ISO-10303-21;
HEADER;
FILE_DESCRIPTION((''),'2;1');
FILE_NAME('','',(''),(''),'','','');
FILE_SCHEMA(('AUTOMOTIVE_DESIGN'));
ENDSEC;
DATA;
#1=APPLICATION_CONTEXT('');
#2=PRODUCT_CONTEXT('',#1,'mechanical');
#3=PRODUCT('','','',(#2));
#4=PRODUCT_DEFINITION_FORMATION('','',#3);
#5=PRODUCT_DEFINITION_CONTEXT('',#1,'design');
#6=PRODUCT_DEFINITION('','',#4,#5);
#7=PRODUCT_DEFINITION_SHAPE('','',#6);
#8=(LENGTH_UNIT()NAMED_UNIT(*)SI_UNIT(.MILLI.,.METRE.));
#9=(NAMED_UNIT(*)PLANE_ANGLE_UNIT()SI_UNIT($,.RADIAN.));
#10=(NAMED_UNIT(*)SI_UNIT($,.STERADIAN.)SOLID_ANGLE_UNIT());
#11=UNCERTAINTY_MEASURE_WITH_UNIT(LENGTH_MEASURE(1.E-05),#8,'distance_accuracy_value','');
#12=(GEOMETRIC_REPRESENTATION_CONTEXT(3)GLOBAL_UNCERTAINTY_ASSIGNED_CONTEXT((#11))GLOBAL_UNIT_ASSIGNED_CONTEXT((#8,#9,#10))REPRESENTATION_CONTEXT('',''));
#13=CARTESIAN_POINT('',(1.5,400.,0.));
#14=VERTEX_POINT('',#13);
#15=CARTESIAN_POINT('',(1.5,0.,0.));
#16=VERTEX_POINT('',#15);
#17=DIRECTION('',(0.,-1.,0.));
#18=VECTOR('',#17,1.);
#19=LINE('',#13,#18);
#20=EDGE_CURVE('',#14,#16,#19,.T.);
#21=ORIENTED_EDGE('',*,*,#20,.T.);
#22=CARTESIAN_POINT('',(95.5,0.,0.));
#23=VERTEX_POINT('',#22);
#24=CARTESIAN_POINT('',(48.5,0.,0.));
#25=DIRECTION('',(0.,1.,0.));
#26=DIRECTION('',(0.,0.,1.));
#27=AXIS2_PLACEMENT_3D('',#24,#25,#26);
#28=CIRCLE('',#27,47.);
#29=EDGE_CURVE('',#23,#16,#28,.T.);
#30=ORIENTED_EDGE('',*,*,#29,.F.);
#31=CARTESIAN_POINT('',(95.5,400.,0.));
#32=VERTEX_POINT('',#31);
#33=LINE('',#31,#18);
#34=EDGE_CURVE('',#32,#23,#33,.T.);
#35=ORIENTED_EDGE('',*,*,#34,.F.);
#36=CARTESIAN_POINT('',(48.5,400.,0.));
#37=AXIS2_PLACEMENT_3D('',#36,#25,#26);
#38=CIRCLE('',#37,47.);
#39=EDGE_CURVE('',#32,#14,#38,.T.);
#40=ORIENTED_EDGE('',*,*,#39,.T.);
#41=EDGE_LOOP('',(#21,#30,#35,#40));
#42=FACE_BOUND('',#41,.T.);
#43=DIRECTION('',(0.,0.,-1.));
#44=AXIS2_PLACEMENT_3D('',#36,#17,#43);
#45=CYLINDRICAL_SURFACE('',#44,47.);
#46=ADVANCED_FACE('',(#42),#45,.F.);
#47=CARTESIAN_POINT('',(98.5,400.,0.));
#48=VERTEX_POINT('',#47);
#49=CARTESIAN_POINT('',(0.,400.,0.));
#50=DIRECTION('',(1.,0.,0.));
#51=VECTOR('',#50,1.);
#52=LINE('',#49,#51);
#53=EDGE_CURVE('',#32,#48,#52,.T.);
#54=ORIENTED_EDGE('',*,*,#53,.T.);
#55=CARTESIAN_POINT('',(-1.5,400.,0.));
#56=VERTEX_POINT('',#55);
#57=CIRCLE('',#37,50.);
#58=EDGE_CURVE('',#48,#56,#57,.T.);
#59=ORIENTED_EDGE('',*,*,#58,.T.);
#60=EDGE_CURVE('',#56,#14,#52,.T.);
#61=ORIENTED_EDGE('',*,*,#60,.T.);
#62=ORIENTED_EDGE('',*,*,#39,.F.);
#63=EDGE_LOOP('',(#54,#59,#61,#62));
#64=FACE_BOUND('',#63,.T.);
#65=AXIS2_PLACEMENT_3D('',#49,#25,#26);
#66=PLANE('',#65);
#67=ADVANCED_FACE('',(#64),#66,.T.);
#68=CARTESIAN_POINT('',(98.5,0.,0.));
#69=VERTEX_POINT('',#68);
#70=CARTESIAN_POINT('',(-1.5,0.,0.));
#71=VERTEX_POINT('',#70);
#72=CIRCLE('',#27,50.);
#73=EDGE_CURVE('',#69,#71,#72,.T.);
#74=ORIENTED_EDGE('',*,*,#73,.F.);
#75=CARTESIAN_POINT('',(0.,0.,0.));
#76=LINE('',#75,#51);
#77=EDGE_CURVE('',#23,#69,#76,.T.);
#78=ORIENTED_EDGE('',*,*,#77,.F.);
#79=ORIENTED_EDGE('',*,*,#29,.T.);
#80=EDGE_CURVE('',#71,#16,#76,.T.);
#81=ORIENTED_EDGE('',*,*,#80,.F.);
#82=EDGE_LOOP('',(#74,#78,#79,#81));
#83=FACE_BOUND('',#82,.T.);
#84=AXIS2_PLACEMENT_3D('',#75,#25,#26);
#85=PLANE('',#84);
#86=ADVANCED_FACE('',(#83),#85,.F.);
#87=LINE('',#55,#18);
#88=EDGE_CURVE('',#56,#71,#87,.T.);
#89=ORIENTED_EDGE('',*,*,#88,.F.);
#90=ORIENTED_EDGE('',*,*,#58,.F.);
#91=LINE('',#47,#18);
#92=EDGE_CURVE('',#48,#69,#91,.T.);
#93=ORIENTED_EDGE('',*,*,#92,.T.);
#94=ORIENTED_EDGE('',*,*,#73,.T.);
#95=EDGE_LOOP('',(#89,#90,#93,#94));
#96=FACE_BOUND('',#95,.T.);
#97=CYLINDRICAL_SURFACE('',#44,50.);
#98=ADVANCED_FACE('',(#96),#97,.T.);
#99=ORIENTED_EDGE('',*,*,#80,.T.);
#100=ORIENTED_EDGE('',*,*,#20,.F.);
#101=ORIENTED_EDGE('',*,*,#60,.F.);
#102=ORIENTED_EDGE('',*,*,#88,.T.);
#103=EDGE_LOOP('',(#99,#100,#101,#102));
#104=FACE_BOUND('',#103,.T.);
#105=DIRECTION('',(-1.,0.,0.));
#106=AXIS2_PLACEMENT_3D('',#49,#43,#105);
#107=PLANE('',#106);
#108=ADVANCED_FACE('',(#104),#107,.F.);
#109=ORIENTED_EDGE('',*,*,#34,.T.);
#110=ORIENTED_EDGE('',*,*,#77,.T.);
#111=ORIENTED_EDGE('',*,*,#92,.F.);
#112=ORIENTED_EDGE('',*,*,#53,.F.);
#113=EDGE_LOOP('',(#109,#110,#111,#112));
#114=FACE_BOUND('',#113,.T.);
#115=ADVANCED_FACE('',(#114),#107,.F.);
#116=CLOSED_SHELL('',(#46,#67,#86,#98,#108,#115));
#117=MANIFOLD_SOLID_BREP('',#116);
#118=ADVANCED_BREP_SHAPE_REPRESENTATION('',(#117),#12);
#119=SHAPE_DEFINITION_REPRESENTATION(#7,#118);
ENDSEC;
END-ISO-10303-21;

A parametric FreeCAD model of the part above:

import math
import FreeCAD as App
import Part
import Sketcher
from FreeCAD import Vector

doc = App.newDocument("Part")
body = doc.addObject("PartDesign::Body", "Body")

sketch1 = body.newObject("Sketcher::SketchObject", "Sketch")
sketch1.AttachmentSupport = (doc.getObject("XZ_Plane"), [""])
sketch1.MapMode = "FlatFace"
sketch1.addGeometry([
    Part.ArcOfCircle(Part.Circle(Vector(48.5, 0, 0), Vector(0, 0, 1), 47), math.radians(180), math.radians(360)),
    Part.LineSegment(Vector(95.5, 0, 0), Vector(98.5, 0, 0)),
    Part.ArcOfCircle(Part.Circle(Vector(48.5, 0, 0), Vector(0, 0, 1), 50), math.radians(180), math.radians(360)),
    Part.LineSegment(Vector(-1.5, 0, 0), Vector(1.5, 0, 0)),
], False)
sketch1.addConstraint([
    Sketcher.Constraint("Coincident", 0, 2, 1, 1),
    Sketcher.Constraint("Coincident", 1, 2, 2, 2),
    Sketcher.Constraint("Coincident", 2, 1, 3, 1),
    Sketcher.Constraint("Coincident", 3, 2, 0, 1),
    Sketcher.Constraint("Horizontal", 1),
    Sketcher.Constraint("Horizontal", 3),
    Sketcher.Constraint("Coincident", 2, 3, 0, 3),
    Sketcher.Constraint("Symmetric", 2, 1, 3, 2, -1, 1),
    Sketcher.Constraint("PointOnObject", 0, 3, -1),
    Sketcher.Constraint("PointOnObject", 0, 2, -1),
    Sketcher.Constraint("Radius", 0, 47.0),
    Sketcher.Constraint("Radius", 2, 50.0),
])
pad1 = body.newObject("PartDesign::Pad", "Pad")
pad1.Profile = sketch1
pad1.Length = 400
pad1.Reversed = True

doc.recompute()
